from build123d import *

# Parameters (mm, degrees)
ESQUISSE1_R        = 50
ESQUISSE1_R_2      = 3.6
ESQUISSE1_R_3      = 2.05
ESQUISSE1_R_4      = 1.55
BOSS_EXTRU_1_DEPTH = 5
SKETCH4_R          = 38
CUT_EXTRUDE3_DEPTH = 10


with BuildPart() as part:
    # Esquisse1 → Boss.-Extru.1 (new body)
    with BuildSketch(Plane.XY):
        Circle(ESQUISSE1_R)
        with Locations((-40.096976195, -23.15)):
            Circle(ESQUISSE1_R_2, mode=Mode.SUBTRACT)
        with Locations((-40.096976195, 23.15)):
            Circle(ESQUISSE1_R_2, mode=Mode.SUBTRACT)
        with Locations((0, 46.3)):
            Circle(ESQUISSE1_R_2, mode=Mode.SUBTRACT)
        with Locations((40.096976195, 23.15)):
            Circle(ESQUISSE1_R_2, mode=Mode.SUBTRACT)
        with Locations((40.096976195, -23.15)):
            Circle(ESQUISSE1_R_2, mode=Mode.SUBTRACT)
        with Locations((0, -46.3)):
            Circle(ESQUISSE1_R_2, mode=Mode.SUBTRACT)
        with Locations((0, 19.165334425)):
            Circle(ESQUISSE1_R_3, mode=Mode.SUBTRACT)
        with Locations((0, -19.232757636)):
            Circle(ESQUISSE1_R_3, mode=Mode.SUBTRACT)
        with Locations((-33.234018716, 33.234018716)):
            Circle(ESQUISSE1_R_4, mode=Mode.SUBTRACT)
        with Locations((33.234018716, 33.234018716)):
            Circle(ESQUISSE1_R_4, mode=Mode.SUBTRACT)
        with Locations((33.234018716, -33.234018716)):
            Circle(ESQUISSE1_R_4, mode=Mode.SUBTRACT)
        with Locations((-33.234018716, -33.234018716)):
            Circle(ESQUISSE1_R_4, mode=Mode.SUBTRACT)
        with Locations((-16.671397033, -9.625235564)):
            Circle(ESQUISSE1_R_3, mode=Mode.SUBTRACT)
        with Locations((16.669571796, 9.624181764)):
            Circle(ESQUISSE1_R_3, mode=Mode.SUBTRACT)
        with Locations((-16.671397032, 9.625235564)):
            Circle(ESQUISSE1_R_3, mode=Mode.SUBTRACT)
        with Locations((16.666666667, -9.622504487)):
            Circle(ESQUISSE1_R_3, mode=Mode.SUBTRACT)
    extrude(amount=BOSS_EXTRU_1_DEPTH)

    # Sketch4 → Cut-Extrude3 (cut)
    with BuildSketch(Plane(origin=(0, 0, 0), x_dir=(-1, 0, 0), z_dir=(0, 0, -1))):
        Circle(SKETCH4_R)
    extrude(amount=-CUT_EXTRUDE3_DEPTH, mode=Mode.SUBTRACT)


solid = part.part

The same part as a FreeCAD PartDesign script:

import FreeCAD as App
import Part
import Sketcher

V = App.Vector

doc = App.newDocument("Part")
body = doc.addObject("PartDesign::Body", "Body")

# Sketch on XY plane
sketch1 = doc.addObject("Sketcher::SketchObject", "Sketch")
body.addObject(sketch1)
sketch1.AttachmentSupport = (doc.XY_Plane, [""])
sketch1.MapMode = "FlatFace"
sketch1.addGeometry([
    Part.Circle(V(0, 0, 0), V(0, 0, 1), 50),  # 0
    Part.Circle(V(-33.2, -33.2, 0), V(0, 0, 1), 1.6),  # 1
    Part.Circle(V(-40.1, -23.1, 0), V(0, 0, 1), 3.6),  # 2
    Part.Circle(V(-16.7, -9.6, 0), V(0, 0, 1), 2),  # 3
    Part.Circle(V(0, -46.3, 0), V(0, 0, 1), 3.6),  # 4
    Part.Circle(V(33.2, -33.2, 0), V(0, 0, 1), 1.6),  # 5
    Part.Circle(V(0, -19.2, 0), V(0, 0, 1), 2),  # 6
    Part.Circle(V(16.7, -9.6, 0), V(0, 0, 1), 2),  # 7
    Part.Circle(V(40.1, -23.1, 0), V(0, 0, 1), 3.6),  # 8
    Part.Circle(V(-40.1, 23.1, 0), V(0, 0, 1), 3.6),  # 9
    Part.Circle(V(-16.7, 9.6, 0), V(0, 0, 1), 2),  # 10
    Part.Circle(V(-33.2, 33.2, 0), V(0, 0, 1), 1.6),  # 11
    Part.Circle(V(16.7, 9.6, 0), V(0, 0, 1), 2),  # 12
    Part.Circle(V(0, 19.2, 0), V(0, 0, 1), 2),  # 13
    Part.Circle(V(40.1, 23.1, 0), V(0, 0, 1), 3.6),  # 14
    Part.Circle(V(0, 46.3, 0), V(0, 0, 1), 3.6),  # 15
    Part.Circle(V(33.2, 33.2, 0), V(0, 0, 1), 1.6),  # 16
], False)
sketch1.addConstraint([
    Sketcher.Constraint("Coincident", 0, 3, -1, 1),
    Sketcher.Constraint("Equal", 2, 4),
    Sketcher.Constraint("Equal", 1, 5),
    Sketcher.Constraint("Equal", 3, 6),
    Sketcher.Constraint("Equal", 6, 7),
    Sketcher.Constraint("Equal", 4, 8),
    Sketcher.Constraint("Equal", 8, 9),
    Sketcher.Constraint("Equal", 7, 10),
    Sketcher.Constraint("Equal", 5, 11),
    Sketcher.Constraint("Equal", 10, 12),
    Sketcher.Constraint("Equal", 12, 13),
    Sketcher.Constraint("Equal", 9, 14),
    Sketcher.Constraint("Equal", 14, 15),
    Sketcher.Constraint("Equal", 11, 16),
    Sketcher.Constraint("Symmetric", 8, 3, 9, 3, -1, 1),
    Sketcher.Constraint("Symmetric", 5, 3, 11, 3, -1, 1),
    Sketcher.Constraint("Symmetric", 2, 3, 14, 3, -1, 1),
    Sketcher.Constraint("Symmetric", 4, 3, 15, 3, -1, 1),
    Sketcher.Constraint("Symmetric", 1, 3, 16, 3, -1, 1),
    Sketcher.Constraint("Symmetric", 1, 3, 5, 3, -2),
    Sketcher.Constraint("Symmetric", 2, 3, 8, 3, -2),
    Sketcher.Constraint("Symmetric", 3, 3, 10, 3, -1),
    Sketcher.Constraint("PointOnObject", 4, 3, -2),
    Sketcher.Constraint("PointOnObject", 6, 3, -2),
    Sketcher.Constraint("PointOnObject", 13, 3, -2),
    Sketcher.Constraint("Diameter", 0, 100.0),
    Sketcher.Constraint("Diameter", 1, 3.1),
    Sketcher.Constraint("Diameter", 2, 7.2),
    Sketcher.Constraint("Diameter", 3, 4.1),
    Sketcher.Constraint("DistanceY", 4, 3, -1, 1, 46.3),
    Sketcher.Constraint("DistanceY", 2, 3, 9, 3, 46.3),
    Sketcher.Constraint("DistanceY", 10, 3, 13, 3, 9.540099),
    Sketcher.Constraint("DistanceX", 1, 3, -1, 1, 33.234019),
    Sketcher.Constraint("DistanceY", 1, 3, -1, 1, 33.234019),
    Sketcher.Constraint("DistanceX", -1, 1, 12, 3, 16.669572),
    Sketcher.Constraint("DistanceY", -1, 1, 12, 3, 9.624182),
    Sketcher.Constraint("DistanceX", 2, 3, 3, 3, 23.425579),
    Sketcher.Constraint("DistanceX", 1, 3, 3, 3, 16.562622),
    Sketcher.Constraint("DistanceY", 1, 3, 6, 3, 14.001261),
    Sketcher.Constraint("DistanceY", 3, 3, 7, 3, 0.002731),
    Sketcher.Constraint("DistanceX", 7, 3, 8, 3, 23.43031),
    Sketcher.Constraint("DistanceY", 3, 3, 10, 3, 19.250471),
])
pad1 = doc.addObject("PartDesign::Pad", "Pad")
body.addObject(pad1)
pad1.Profile = sketch1
pad1.Length = 5

# Sketch on XY plane
sketch2 = doc.addObject("Sketcher::SketchObject", "Sketch001")
body.addObject(sketch2)
sketch2.AttachmentSupport = (doc.XY_Plane, [""])
sketch2.MapMode = "FlatFace"
sketch2.addGeometry(Part.Circle(V(0, 0, 0), V(0, 0, 1), 38), False)
sketch2.addConstraint([
    Sketcher.Constraint("Coincident", 0, 3, -1, 1),
    Sketcher.Constraint("Diameter", 0, 76.0),
])
pocket1 = doc.addObject("PartDesign::Pocket", "Pocket")
body.addObject(pocket1)
pocket1.Profile = sketch2
pocket1.Length = 10
pocket1.Reversed = True

doc.recompute()
